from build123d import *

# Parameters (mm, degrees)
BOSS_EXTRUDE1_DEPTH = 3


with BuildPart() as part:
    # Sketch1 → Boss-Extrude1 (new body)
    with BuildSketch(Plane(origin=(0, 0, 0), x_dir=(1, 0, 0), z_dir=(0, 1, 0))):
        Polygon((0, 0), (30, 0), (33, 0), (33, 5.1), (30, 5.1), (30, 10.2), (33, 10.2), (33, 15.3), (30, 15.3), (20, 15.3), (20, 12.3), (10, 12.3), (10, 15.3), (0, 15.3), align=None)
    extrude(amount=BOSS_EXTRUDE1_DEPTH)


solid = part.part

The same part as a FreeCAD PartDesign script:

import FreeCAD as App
import Part
import Sketcher
Q = App.Units.Quantity

doc = App.newDocument("Part")
body = doc.addObject("PartDesign::Body", "Body")

sketch1 = body.newObject("Sketcher::SketchObject", "Sketch")
sketch1.AttachmentSupport = (doc.getObject("XZ_Plane"), [""])
sketch1.MapMode = "FlatFace"
sketch1.addGeometry([
    Part.LineSegment(App.Vector(0, 0, 0), App.Vector(33, 0, 0)),
    Part.LineSegment(App.Vector(33, 0, 0), App.Vector(33, -5.1, 0)),
    Part.LineSegment(App.Vector(33, -5.1, 0), App.Vector(30, -5.1, 0)),
    Part.LineSegment(App.Vector(30, -5.1, 0), App.Vector(30, -10.2, 0)),
    Part.LineSegment(App.Vector(30, -10.2, 0), App.Vector(33, -10.2, 0)),
    Part.LineSegment(App.Vector(33, -10.2, 0), App.Vector(33, -15.3, 0)),
    Part.LineSegment(App.Vector(33, -15.3, 0), App.Vector(20, -15.3, 0)),
    Part.LineSegment(App.Vector(20, -15.3, 0), App.Vector(20, -12.3, 0)),
    Part.LineSegment(App.Vector(20, -12.3, 0), App.Vector(10, -12.3, 0)),
    Part.LineSegment(App.Vector(10, -12.3, 0), App.Vector(10, -15.3, 0)),
    Part.LineSegment(App.Vector(10, -15.3, 0), App.Vector(0, -15.3, 0)),
    Part.LineSegment(App.Vector(0, -15.3, 0), App.Vector(0, 0, 0)),
], False)
sketch1.addConstraint([
    Sketcher.Constraint("Coincident", 0, 2, 1, 1),
    Sketcher.Constraint("Coincident", 1, 2, 2, 1),
    Sketcher.Constraint("Coincident", 2, 2, 3, 1),
    Sketcher.Constraint("Coincident", 3, 2, 4, 1),
    Sketcher.Constraint("Coincident", 4, 2, 5, 1),
    Sketcher.Constraint("Coincident", 5, 2, 6, 1),
    Sketcher.Constraint("Coincident", 6, 2, 7, 1),
    Sketcher.Constraint("Coincident", 7, 2, 8, 1),
    Sketcher.Constraint("Coincident", 8, 2, 9, 1),
    Sketcher.Constraint("Coincident", 9, 2, 10, 1),
    Sketcher.Constraint("Coincident", 10, 2, 11, 1),
    Sketcher.Constraint("Coincident", 11, 2, 0, 1),
    Sketcher.Constraint("Horizontal", 0),
    Sketcher.Constraint("Vertical", 1),
    Sketcher.Constraint("Horizontal", 2),
    Sketcher.Constraint("Vertical", 3),
    Sketcher.Constraint("Horizontal", 4),
    Sketcher.Constraint("Vertical", 5),
    Sketcher.Constraint("Horizontal", 6),
    Sketcher.Constraint("Vertical", 7),
    Sketcher.Constraint("Horizontal", 8),
    Sketcher.Constraint("Vertical", 9),
    Sketcher.Constraint("Horizontal", 10),
    Sketcher.Constraint("Vertical", 11),
    Sketcher.Constraint("Coincident", 11, 2, -1, 1),
    Sketcher.Constraint("Horizontal", 6, 2, 9, 2),
    Sketcher.Constraint("Vertical", 1, 2, 4, 2),
    Sketcher.Constraint("Equal", 8, 10),
    Sketcher.Constraint("Equal", 1, 3),
    Sketcher.Constraint("Equal", 3, 5),
    Sketcher.Constraint("Equal", 4, 7),
    Sketcher.Constraint("DistanceX", 0, 1, 0, 2, Q("33 mm")),
    Sketcher.Constraint("DistanceX", 2, 2, 2, 1, Q("3 mm")),
    Sketcher.Constraint("DistanceX", 6, 2, 6, 1, Q("13 mm")),
    Sketcher.Constraint("DistanceY", 1, 2, 1, 1, Q("5.1 mm")),
])
pad1 = body.newObject("PartDesign::Pad", "Pad")
pad1.Profile = sketch1
pad1.Length = 3
pad1.Reversed = True

doc.recompute()
